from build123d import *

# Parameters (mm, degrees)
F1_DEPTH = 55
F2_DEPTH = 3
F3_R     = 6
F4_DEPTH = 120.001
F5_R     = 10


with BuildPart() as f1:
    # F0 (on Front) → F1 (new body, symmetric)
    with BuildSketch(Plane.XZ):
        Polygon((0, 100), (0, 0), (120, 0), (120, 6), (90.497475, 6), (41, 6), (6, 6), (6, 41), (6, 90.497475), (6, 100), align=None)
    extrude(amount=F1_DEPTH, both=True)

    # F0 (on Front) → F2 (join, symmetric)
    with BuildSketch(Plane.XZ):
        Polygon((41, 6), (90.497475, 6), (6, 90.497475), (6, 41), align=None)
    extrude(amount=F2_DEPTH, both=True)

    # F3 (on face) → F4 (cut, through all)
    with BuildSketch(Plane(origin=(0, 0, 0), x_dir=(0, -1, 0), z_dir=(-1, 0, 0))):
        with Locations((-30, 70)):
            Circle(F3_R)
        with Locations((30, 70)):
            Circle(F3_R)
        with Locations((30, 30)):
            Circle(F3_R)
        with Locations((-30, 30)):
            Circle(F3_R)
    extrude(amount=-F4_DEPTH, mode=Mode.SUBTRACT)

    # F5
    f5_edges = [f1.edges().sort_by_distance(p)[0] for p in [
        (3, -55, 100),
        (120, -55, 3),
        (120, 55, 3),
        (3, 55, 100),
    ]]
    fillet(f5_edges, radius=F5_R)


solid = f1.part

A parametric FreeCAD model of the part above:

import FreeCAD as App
import Part
import Sketcher

V = App.Vector


def edges_at(feature, points):
    """Names of the edges that pass closest to the given points."""
    edges = feature.Shape.Edges
    near = lambda p: min(range(len(edges)), key=lambda i: edges[i].distToShape(Part.Vertex(*p))[0])
    return sorted({f"Edge{near(p) + 1}" for p in points})


def add_polygon(sketch, points):
    """Adds a closed chain of lines whose ends are joined by coincident constraints."""
    first, n = sketch.GeometryCount, len(points)
    for a, b in zip(points, points[1:] + points[:1]):
        sketch.addGeometry(Part.LineSegment(App.Vector(*a, 0), App.Vector(*b, 0)), False)
    for i in range(n):
        sketch.addConstraint(Sketcher.Constraint("Coincident", first + i, 2, first + (i + 1) % n, 1))

doc = App.newDocument("Part")
body = doc.addObject("PartDesign::Body", "Body")

# Sketch on XZ plane
sketch1 = body.newObject("Sketcher::SketchObject", "Sketch")
sketch1.AttachmentSupport = (doc.getObject("XZ_Plane"), [""])
sketch1.MapMode = "FlatFace"
add_polygon(sketch1, [(0, 100), (0, 0), (120, 0), (120, 6), (6, 6), (6, 100)])  # lines 0-5
sketch1.addConstraint(Sketcher.Constraint("Vertical", 0))
sketch1.addConstraint(Sketcher.Constraint("Horizontal", 1))
sketch1.addConstraint(Sketcher.Constraint("Vertical", 2))
sketch1.addConstraint(Sketcher.Constraint("Horizontal", 3))
sketch1.addConstraint(Sketcher.Constraint("Vertical", 4))
sketch1.addConstraint(Sketcher.Constraint("Horizontal", 5))
sketch1.addConstraint(Sketcher.Constraint("Coincident", 0, 2, -1, 1))
sketch1.addConstraint(Sketcher.Constraint("Equal", 5, 2))
sketch1.addConstraint(Sketcher.Constraint("DistanceX", 1, 1, 1, 2, 120.0))
sketch1.addConstraint(Sketcher.Constraint("DistanceX", 3, 2, 3, 1, 114.0))
sketch1.addConstraint(Sketcher.Constraint("DistanceY", 0, 2, 0, 1, 100.0))
pad1 = body.newObject("PartDesign::Pad", "Pad")
pad1.Profile = sketch1
pad1.Length = 110
pad1.Midplane = True

# Sketch on XZ plane
sketch2 = body.newObject("Sketcher::SketchObject", "Sketch001")
sketch2.AttachmentSupport = (doc.getObject("XZ_Plane"), [""])
sketch2.MapMode = "FlatFace"
add_polygon(sketch2, [(41, 6), (90, 6), (6, 90), (6, 41)])  # lines 0-3
sketch2.addConstraint(Sketcher.Constraint("Horizontal", 0))
sketch2.addConstraint(Sketcher.Constraint("Vertical", 2))
sketch2.addConstraint(Sketcher.Constraint("Parallel", 1, 3))
sketch2.addConstraint(Sketcher.Constraint("Equal", 0, 2))
sketch2.addConstraint(Sketcher.Constraint("DistanceY", -1, 1, 0, 2, 6.0))
sketch2.addConstraint(Sketcher.Constraint("DistanceX", -1, 1, 1, 2, 6.0))
sketch2.addConstraint(Sketcher.Constraint("DistanceY", -1, 1, 2, 2, 41.0))
sketch2.addConstraint(Sketcher.Constraint("DistanceX", 0, 1, 0, 2, 49.497475))
pad2 = body.newObject("PartDesign::Pad", "Pad001")
pad2.Profile = sketch2
pad2.Length = 6
pad2.Midplane = True

# Sketch on YZ plane
sketch3 = body.newObject("Sketcher::SketchObject", "Sketch002")
sketch3.AttachmentSupport = (doc.getObject("YZ_Plane"), [""])
sketch3.MapMode = "FlatFace"
sketch3.addGeometry(Part.Circle(V(30, 70, 0), V(0, 0, 1), 6), False)
sketch3.addGeometry(Part.Circle(V(-30, 70, 0), V(0, 0, 1), 6), False)
sketch3.addGeometry(Part.Circle(V(-30, 30, 0), V(0, 0, 1), 6), False)
sketch3.addGeometry(Part.Circle(V(30, 30, 0), V(0, 0, 1), 6), False)
sketch3.addConstraint(Sketcher.Constraint("Equal", 0, 1))
sketch3.addConstraint(Sketcher.Constraint("Equal", 1, 2))
sketch3.addConstraint(Sketcher.Constraint("Equal", 2, 3))
sketch3.addConstraint(Sketcher.Constraint("Symmetric", 0, 3, 1, 3, -2))
sketch3.addConstraint(Sketcher.Constraint("Symmetric", 2, 3, 3, 3, -2))
sketch3.addConstraint(Sketcher.Constraint("Vertical", 1, 3, 2, 3))
sketch3.addConstraint(Sketcher.Constraint("Diameter", 0, 12.0))
sketch3.addConstraint(Sketcher.Constraint("DistanceX", -1, 1, 0, 3, 30.0))
sketch3.addConstraint(Sketcher.Constraint("DistanceY", -1, 1, 0, 3, 70.0))
sketch3.addConstraint(Sketcher.Constraint("DistanceY", -1, 1, 2, 3, 30.0))
pocket1 = body.newObject("PartDesign::Pocket", "Pocket")
pocket1.Profile = sketch3
pocket1.Type = "ThroughAll"
pocket1.Reversed = True
doc.recompute()

fillet = body.newObject("PartDesign::Fillet", "Fillet")
fillet.Base = (pocket1, edges_at(pocket1, [
    (3, -55, 100),
    (120, -55, 3),
    (120, 55, 3),
    (3, 55, 100),
]))
fillet.Radius = 10

doc.recompute()
